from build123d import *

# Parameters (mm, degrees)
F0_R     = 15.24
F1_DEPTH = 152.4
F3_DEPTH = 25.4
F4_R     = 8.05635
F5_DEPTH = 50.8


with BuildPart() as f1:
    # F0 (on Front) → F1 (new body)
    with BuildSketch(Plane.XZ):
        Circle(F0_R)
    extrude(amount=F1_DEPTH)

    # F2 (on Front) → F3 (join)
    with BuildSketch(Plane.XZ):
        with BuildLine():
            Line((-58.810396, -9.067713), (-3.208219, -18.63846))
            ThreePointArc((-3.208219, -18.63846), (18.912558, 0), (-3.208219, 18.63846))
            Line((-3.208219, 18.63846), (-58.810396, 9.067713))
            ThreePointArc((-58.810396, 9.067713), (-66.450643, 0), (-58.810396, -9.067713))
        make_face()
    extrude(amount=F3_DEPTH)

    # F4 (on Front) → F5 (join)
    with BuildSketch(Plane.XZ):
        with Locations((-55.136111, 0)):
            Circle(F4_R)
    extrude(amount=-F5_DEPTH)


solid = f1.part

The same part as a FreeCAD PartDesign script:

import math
import FreeCAD as App
import Part
import Sketcher

V = App.Vector
Q = App.Units.Quantity

doc = App.newDocument("Part")
params = doc.addObject("Spreadsheet::Sheet", "Params")
for row, (alias, value) in enumerate([
    ("sketch1_diameter", "1.2 in"),
    ("pad1_length", "6 in"),
    ("pad2_length", "1 in"),
    ("pad3_length", "2 in"),
], start=1):
    params.set(f"A{row}", alias)
    params.set(f"B{row}", "=" + value)
    params.setAlias(f"B{row}", alias)

body = doc.addObject("PartDesign::Body", "Body")

sketch1 = body.newObject("Sketcher::SketchObject", "Sketch")
sketch1.AttachmentSupport = (doc.getObject("XZ_Plane"), [""])
sketch1.MapMode = "FlatFace"
sketch1.addGeometry(Part.Circle(V(0, 0, 0), V(0, 0, 1), 15.24), False)
sketch1.addConstraint(Sketcher.Constraint("Coincident", 0, 3, -1, 1))
sketch1.addConstraint(Sketcher.Constraint("Diameter", 0, Q("1.2 in")))
sketch1.setExpression("Constraints[1]", "Params.sketch1_diameter")
pad1 = body.newObject("PartDesign::Pad", "Pad")
pad1.Profile = sketch1
pad1.setExpression("Length", "Params.pad1_length")

sketch2 = body.newObject("Sketcher::SketchObject", "Sketch001")
sketch2.AttachmentSupport = (doc.getObject("XZ_Plane"), [""])
sketch2.MapMode = "FlatFace"
sketch2.addGeometry(Part.LineSegment(V(-58.810396, -9.067713, 0), V(-3.208219, -18.63846, 0)), False)
sketch2.addGeometry(Part.ArcOfCircle(Part.Circle(V(0, 0, 0), V(0, 0, 1), 18.912558), math.radians(-99.766558), math.radians(99.766558)), False)
sketch2.addGeometry(Part.LineSegment(V(-3.208219, 18.63846, 0), V(-58.810396, 9.067713, 0)), False)
sketch2.addGeometry(Part.ArcOfCircle(Part.Circle(V(-57.24958, 0, 0), V(0, 0, 1), 9.201063), math.radians(99.76656), math.radians(260.23344)), False)
sketch2.addConstraint(Sketcher.Constraint("Tangent", 0, 2, 1, 1))
sketch2.addConstraint(Sketcher.Constraint("Tangent", 1, 2, 2, 1))
sketch2.addConstraint(Sketcher.Constraint("Tangent", 2, 2, 3, 1))
sketch2.addConstraint(Sketcher.Constraint("Tangent", 3, 2, 0, 1))
sketch2.addConstraint(Sketcher.Constraint("Coincident", 1, 3, -1, 1))
sketch2.addConstraint(Sketcher.Constraint("PointOnObject", 3, 3, -1))
sketch2.addConstraint(Sketcher.Constraint("Radius", 1, 18.912558))
sketch2.addConstraint(Sketcher.Constraint("Radius", 3, 9.201063))
sketch2.addConstraint(Sketcher.Constraint("DistanceX", 3, 3, -1, 1, 57.24958))
pad2 = body.newObject("PartDesign::Pad", "Pad001")
pad2.Profile = sketch2
pad2.setExpression("Length", "Params.pad2_length")

sketch3 = body.newObject("Sketcher::SketchObject", "Sketch002")
sketch3.AttachmentSupport = (doc.getObject("XZ_Plane"), [""])
sketch3.MapMode = "FlatFace"
sketch3.addGeometry(Part.Circle(V(-55.136111, 0, 0), V(0, 0, 1), 8.05635), False)
sketch3.addConstraint(Sketcher.Constraint("PointOnObject", 0, 3, -1))
sketch3.addConstraint(Sketcher.Constraint("Diameter", 0, 16.1127))
sketch3.addConstraint(Sketcher.Constraint("DistanceX", 0, 3, -1, 1, 55.136111))
pad3 = body.newObject("PartDesign::Pad", "Pad002")
pad3.Profile = sketch3
pad3.setExpression("Length", "Params.pad3_length")
pad3.Reversed = True

doc.recompute()
